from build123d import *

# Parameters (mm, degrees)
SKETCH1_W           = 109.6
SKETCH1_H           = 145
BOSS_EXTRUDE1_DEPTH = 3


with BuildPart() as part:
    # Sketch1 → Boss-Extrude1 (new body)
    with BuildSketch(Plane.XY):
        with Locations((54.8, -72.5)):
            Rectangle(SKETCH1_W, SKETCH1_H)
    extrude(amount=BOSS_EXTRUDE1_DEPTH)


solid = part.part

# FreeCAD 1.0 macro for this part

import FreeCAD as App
import Part
import Sketcher
from FreeCAD import Vector

doc = App.newDocument("Part")
body = doc.addObject("PartDesign::Body", "Body")

# Sketch on XY plane
sketch1 = body.newObject("Sketcher::SketchObject", "Sketch")
sketch1.AttachmentSupport = (doc.getObject("XY_Plane"), [""])
sketch1.MapMode = "FlatFace"
sketch1.addGeometry([
    Part.LineSegment(Vector(0, 0, 0), Vector(0, -145, 0)),
    Part.LineSegment(Vector(0, -145, 0), Vector(109.6, -145, 0)),
    Part.LineSegment(Vector(109.6, -145, 0), Vector(109.6, 0, 0)),
    Part.LineSegment(Vector(109.6, 0, 0), Vector(0, 0, 0)),
], False)
sketch1.addConstraint([
    Sketcher.Constraint("Coincident", 0, 2, 1, 1),
    Sketcher.Constraint("Coincident", 1, 2, 2, 1),
    Sketcher.Constraint("Coincident", 2, 2, 3, 1),
    Sketcher.Constraint("Coincident", 3, 2, 0, 1),
    Sketcher.Constraint("Vertical", 0),
    Sketcher.Constraint("Horizontal", 1),
    Sketcher.Constraint("Vertical", 2),
    Sketcher.Constraint("Horizontal", 3),
    Sketcher.Constraint("Coincident", 3, 2, -1, 1),
    Sketcher.Constraint("DistanceY", 0, 2, 0, 1, 145.0),
    Sketcher.Constraint("DistanceX", 1, 1, 1, 2, 109.6),
])
pad1 = body.newObject("PartDesign::Pad", "Pad")
pad1.Profile = sketch1
pad1.Length = 3

doc.recompute()
